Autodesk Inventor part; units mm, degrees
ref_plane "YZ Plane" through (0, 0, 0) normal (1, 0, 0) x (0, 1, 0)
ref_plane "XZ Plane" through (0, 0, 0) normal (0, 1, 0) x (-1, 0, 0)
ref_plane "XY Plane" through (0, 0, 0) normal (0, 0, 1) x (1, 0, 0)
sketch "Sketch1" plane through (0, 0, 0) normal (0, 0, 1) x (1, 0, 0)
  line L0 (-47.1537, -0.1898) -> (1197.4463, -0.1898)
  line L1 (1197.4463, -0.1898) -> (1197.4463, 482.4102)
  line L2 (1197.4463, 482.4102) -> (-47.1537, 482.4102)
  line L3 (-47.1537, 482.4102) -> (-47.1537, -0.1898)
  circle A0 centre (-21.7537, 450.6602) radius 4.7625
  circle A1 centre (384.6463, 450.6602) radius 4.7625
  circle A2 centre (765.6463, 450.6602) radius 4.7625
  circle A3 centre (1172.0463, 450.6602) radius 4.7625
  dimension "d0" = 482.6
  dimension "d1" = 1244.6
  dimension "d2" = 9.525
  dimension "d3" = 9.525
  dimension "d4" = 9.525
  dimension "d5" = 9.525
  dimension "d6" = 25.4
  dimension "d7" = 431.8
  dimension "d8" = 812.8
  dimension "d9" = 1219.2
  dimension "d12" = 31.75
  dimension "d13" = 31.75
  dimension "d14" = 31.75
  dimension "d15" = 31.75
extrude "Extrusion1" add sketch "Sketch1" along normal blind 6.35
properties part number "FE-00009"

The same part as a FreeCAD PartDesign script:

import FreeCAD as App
import Part
import Sketcher

V = App.Vector
Q = App.Units.Quantity


def add_polygon(sketch, points):
    """Adds a closed chain of lines whose ends are joined by coincident constraints."""
    first, n = sketch.GeometryCount, len(points)
    for a, b in zip(points, points[1:] + points[:1]):
        sketch.addGeometry(Part.LineSegment(App.Vector(*a, 0), App.Vector(*b, 0)), False)
    for i in range(n):
        sketch.addConstraint(Sketcher.Constraint("Coincident", first + i, 2, first + (i + 1) % n, 1))

doc = App.newDocument("Part")
body = doc.addObject("PartDesign::Body", "Body")

# Sketch on XY plane
sketch1 = body.newObject("Sketcher::SketchObject", "Sketch")
sketch1.AttachmentSupport = (doc.getObject("XY_Plane"), [""])
sketch1.MapMode = "FlatFace"
add_polygon(sketch1, [(-47.1537, 482.4102), (-47.1537, -0.1898), (1197.4463, -0.1898), (1197.4463, 482.4102)])  # lines 0-3
sketch1.addGeometry(Part.Circle(V(-21.7537, 450.6602, 0), V(0, 0, 1), 4.7625), False)  # 4
sketch1.addGeometry(Part.Circle(V(384.6463, 450.6602, 0), V(0, 0, 1), 4.7625), False)  # 5
sketch1.addGeometry(Part.Circle(V(765.6463, 450.6602, 0), V(0, 0, 1), 4.7625), False)  # 6
sketch1.addGeometry(Part.Circle(V(1172.0463, 450.6602, 0), V(0, 0, 1), 4.7625), False)  # 7
sketch1.addConstraint(Sketcher.Constraint("Vertical", 0))
sketch1.addConstraint(Sketcher.Constraint("Horizontal", 1))
sketch1.addConstraint(Sketcher.Constraint("Vertical", 2))
sketch1.addConstraint(Sketcher.Constraint("Horizontal", 3))
sketch1.addConstraint(Sketcher.Constraint("Equal", 4, 5))
sketch1.addConstraint(Sketcher.Constraint("Equal", 5, 6))
sketch1.addConstraint(Sketcher.Constraint("Equal", 6, 7))
sketch1.addConstraint(Sketcher.Constraint("Horizontal", 4, 3, 5, 3))
sketch1.addConstraint(Sketcher.Constraint("Horizontal", 5, 3, 6, 3))
sketch1.addConstraint(Sketcher.Constraint("Horizontal", 6, 3, 7, 3))
sketch1.addConstraint(Sketcher.Constraint("DistanceX", 1, 1, 1, 2, Q("49 in")))
sketch1.addConstraint(Sketcher.Constraint("DistanceY", 0, 2, 0, 1, Q("19 in")))
sketch1.addConstraint(Sketcher.Constraint("Diameter", 4, Q("0.375 in")))
sketch1.addConstraint(Sketcher.Constraint("DistanceX", 0, 2, 4, 3, Q("1 in")))
sketch1.addConstraint(Sketcher.Constraint("DistanceX", 0, 2, 5, 3, Q("17 in")))
sketch1.addConstraint(Sketcher.Constraint("DistanceX", 0, 2, 6, 3, Q("32 in")))
sketch1.addConstraint(Sketcher.Constraint("DistanceX", 0, 2, 7, 3, Q("48 in")))
sketch1.addConstraint(Sketcher.Constraint("DistanceY", 7, 3, 2, 2, Q("1.25 in")))
sketch1.addConstraint(Sketcher.Constraint("DistanceX", 4, 3, -1, 1, Q("21.7537 mm")))
sketch1.addConstraint(Sketcher.Constraint("DistanceY", -1, 1, 4, 3, Q("450.6602 mm")))
pad1 = body.newObject("PartDesign::Pad", "Pad")
pad1.Profile = sketch1
pad1.Length = Q("0.25 in")

doc.recompute()
